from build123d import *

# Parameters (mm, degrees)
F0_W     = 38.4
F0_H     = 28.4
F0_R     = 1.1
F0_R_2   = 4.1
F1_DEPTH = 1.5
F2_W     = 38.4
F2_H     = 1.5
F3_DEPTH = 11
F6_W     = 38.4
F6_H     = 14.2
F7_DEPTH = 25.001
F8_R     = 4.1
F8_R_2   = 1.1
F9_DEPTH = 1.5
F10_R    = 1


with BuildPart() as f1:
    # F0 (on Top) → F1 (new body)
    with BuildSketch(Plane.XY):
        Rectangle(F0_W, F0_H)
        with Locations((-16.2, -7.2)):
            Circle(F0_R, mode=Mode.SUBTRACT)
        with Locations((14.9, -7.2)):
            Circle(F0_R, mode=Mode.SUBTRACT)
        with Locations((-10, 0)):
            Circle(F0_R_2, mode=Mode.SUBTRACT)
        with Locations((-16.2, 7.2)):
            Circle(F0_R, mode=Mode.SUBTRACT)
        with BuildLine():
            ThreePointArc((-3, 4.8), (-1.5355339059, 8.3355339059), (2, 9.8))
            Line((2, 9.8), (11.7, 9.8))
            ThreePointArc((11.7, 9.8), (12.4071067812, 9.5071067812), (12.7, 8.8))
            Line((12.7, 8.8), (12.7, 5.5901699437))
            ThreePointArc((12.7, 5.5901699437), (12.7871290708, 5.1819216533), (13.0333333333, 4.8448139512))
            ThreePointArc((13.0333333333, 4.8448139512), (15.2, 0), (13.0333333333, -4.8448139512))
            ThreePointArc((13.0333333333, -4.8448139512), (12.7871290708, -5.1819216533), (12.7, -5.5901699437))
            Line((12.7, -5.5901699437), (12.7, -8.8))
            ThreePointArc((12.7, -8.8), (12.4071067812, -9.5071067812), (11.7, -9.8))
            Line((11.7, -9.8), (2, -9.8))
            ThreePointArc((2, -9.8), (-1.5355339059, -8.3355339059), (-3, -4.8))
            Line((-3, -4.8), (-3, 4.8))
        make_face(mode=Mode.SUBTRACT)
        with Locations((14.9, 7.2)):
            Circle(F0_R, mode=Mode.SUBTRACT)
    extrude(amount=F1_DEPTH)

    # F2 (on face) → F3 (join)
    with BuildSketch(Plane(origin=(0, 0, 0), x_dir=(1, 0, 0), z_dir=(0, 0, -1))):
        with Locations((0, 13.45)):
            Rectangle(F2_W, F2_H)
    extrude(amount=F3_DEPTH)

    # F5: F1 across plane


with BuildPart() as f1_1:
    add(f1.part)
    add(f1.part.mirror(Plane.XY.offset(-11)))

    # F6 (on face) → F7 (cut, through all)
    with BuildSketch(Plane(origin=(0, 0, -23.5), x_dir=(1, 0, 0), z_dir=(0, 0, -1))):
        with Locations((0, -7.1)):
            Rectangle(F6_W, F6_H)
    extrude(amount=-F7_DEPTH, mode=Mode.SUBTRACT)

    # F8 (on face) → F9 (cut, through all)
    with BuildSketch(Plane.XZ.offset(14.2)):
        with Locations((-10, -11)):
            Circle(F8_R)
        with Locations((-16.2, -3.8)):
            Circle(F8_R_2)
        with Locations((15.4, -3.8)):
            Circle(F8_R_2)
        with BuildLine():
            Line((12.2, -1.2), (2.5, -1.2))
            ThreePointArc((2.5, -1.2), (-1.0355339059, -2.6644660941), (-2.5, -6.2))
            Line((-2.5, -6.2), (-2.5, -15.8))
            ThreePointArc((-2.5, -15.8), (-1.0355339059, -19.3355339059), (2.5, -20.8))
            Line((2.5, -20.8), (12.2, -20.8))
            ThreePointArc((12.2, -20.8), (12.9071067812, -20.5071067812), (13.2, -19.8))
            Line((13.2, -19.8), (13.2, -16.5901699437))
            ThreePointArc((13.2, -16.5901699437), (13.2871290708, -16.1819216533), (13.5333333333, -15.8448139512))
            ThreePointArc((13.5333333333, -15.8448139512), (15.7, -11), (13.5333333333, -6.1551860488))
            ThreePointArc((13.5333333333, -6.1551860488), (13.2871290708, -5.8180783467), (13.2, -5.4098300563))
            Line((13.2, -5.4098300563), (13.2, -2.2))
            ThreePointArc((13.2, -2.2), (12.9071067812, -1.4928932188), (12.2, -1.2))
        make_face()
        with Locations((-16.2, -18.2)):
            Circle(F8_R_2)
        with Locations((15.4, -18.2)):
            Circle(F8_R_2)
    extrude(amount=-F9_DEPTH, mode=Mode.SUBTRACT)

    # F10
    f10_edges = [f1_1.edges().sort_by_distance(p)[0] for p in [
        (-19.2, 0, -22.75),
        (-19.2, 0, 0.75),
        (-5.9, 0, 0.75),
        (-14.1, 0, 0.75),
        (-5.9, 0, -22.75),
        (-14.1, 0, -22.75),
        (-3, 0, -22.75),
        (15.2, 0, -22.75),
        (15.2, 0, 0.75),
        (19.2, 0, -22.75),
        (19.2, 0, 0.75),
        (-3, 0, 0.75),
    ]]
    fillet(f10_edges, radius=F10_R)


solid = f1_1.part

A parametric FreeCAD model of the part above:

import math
import FreeCAD as App
import Part
import Sketcher
from FreeCAD import Vector


def edges_at(feature, points):
    """Names of the edges that pass closest to the given points."""
    edges = feature.Shape.Edges
    near = lambda p: min(range(len(edges)), key=lambda i: edges[i].distToShape(Part.Vertex(*p))[0])
    return sorted({f"Edge{near(p) + 1}" for p in points})


def add_polygon(sketch, points):
    """Adds a closed chain of lines whose ends are joined by coincident constraints."""
    first, n = sketch.GeometryCount, len(points)
    for a, b in zip(points, points[1:] + points[:1]):
        sketch.addGeometry(Part.LineSegment(App.Vector(*a, 0), App.Vector(*b, 0)), False)
    for i in range(n):
        sketch.addConstraint(Sketcher.Constraint("Coincident", first + i, 2, first + (i + 1) % n, 1))

doc = App.newDocument("Part")
body = doc.addObject("PartDesign::Body", "Body")

# Sketch on XY plane
sketch1 = body.newObject("Sketcher::SketchObject", "Sketch")
sketch1.AttachmentSupport = (doc.getObject("XY_Plane"), [""])
sketch1.MapMode = "FlatFace"
add_polygon(sketch1, [(-19.2, 14.2), (-19.2, -14.2), (19.2, -14.2), (19.2, 14.2)])  # lines 0-3
sketch1.addGeometry(Part.Circle(Vector(-16.2, -7.2, 0), Vector(0, 0, 1), 1.1), False)  # 4
sketch1.addGeometry(Part.Circle(Vector(14.9, -7.2, 0), Vector(0, 0, 1), 1.1), False)  # 5
sketch1.addGeometry(Part.Circle(Vector(-10, 0, 0), Vector(0, 0, 1), 4.1), False)  # 6
sketch1.addGeometry(Part.Circle(Vector(-16.2, 7.2, 0), Vector(0, 0, 1), 1.1), False)  # 7
sketch1.addGeometry(Part.LineSegment(Vector(-3, -4.8, 0), Vector(-3, 4.8, 0)), False)  # 8
sketch1.addGeometry(Part.ArcOfCircle(Part.Circle(Vector(2, 4.8, 0), Vector(0, 0, 1), 5), math.radians(90), math.radians(180)), False)  # 9
sketch1.addGeometry(Part.LineSegment(Vector(2, 9.8, 0), Vector(11.7, 9.8, 0)), False)  # 10
sketch1.addGeometry(Part.ArcOfCircle(Part.Circle(Vector(11.7, 8.8, 0), Vector(0, 0, 1), 1), math.radians(0), math.radians(90)), False)  # 11
sketch1.addGeometry(Part.LineSegment(Vector(12.7, 8.8, 0), Vector(12.7, 5.59017, 0)), False)  # 12
sketch1.addGeometry(Part.ArcOfCircle(Part.Circle(Vector(13.7, 5.59017, 0), Vector(0, 0, 1), 1), math.radians(180), math.radians(228.189685)), False)  # 13
sketch1.addGeometry(Part.ArcOfCircle(Part.Circle(Vector(8.7, 0, 0), Vector(0, 0, 1), 6.5), math.radians(-48.189685), math.radians(48.189685)), False)  # 14
sketch1.addGeometry(Part.ArcOfCircle(Part.Circle(Vector(13.7, -5.59017, 0), Vector(0, 0, 1), 1), math.radians(131.810315), math.radians(180)), False)  # 15
sketch1.addGeometry(Part.LineSegment(Vector(12.7, -5.59017, 0), Vector(12.7, -8.8, 0)), False)  # 16
sketch1.addGeometry(Part.ArcOfCircle(Part.Circle(Vector(11.7, -8.8, 0), Vector(0, 0, 1), 1), math.radians(-90), math.radians(0)), False)  # 17
sketch1.addGeometry(Part.LineSegment(Vector(11.7, -9.8, 0), Vector(2, -9.8, 0)), False)  # 18
sketch1.addGeometry(Part.ArcOfCircle(Part.Circle(Vector(2, -4.8, 0), Vector(0, 0, 1), 5), math.radians(180), math.radians(270)), False)  # 19
sketch1.addGeometry(Part.Circle(Vector(14.9, 7.2, 0), Vector(0, 0, 1), 1.1), False)  # 20
sketch1.addConstraint(Sketcher.Constraint("Tangent", 8, 2, 9, 2))
sketch1.addConstraint(Sketcher.Constraint("Tangent", 9, 1, 10, 1))
sketch1.addConstraint(Sketcher.Constraint("Tangent", 10, 2, 11, 2))
sketch1.addConstraint(Sketcher.Constraint("Tangent", 11, 1, 12, 1))
sketch1.addConstraint(Sketcher.Constraint("Tangent", 12, 2, 13, 1))
sketch1.addConstraint(Sketcher.Constraint("Tangent", 13, 2, 14, 2))
sketch1.addConstraint(Sketcher.Constraint("Tangent", 14, 1, 15, 1))
sketch1.addConstraint(Sketcher.Constraint("Tangent", 15, 2, 16, 1))
sketch1.addConstraint(Sketcher.Constraint("Tangent", 16, 2, 17, 2))
sketch1.addConstraint(Sketcher.Constraint("Tangent", 17, 1, 18, 1))
sketch1.addConstraint(Sketcher.Constraint("Tangent", 18, 2, 19, 2))
sketch1.addConstraint(Sketcher.Constraint("Tangent", 19, 1, 8, 1))
sketch1.addConstraint(Sketcher.Constraint("Vertical", 0))
sketch1.addConstraint(Sketcher.Constraint("Horizontal", 1))
sketch1.addConstraint(Sketcher.Constraint("Vertical", 2))
sketch1.addConstraint(Sketcher.Constraint("Horizontal", 3))
sketch1.addConstraint(Sketcher.Constraint("Vertical", 8))
sketch1.addConstraint(Sketcher.Constraint("Horizontal", 10))
sketch1.addConstraint(Sketcher.Constraint("Vertical", 12))
sketch1.addConstraint(Sketcher.Constraint("Vertical", 16))
sketch1.addConstraint(Sketcher.Constraint("Horizontal", 18))
sketch1.addConstraint(Sketcher.Constraint("Equal", 4, 5))
sketch1.addConstraint(Sketcher.Constraint("Equal", 5, 7))
sketch1.addConstraint(Sketcher.Constraint("Equal", 11, 13))
sketch1.addConstraint(Sketcher.Constraint("Equal", 13, 15))
sketch1.addConstraint(Sketcher.Constraint("Equal", 15, 17))
sketch1.addConstraint(Sketcher.Constraint("Equal", 9, 19))
sketch1.addConstraint(Sketcher.Constraint("Equal", 7, 20))
sketch1.addConstraint(Sketcher.Constraint("Symmetric", 0, 2, 2, 2, -1, 1))
sketch1.addConstraint(Sketcher.Constraint("Symmetric", 4, 3, 7, 3, -1))
sketch1.addConstraint(Sketcher.Constraint("Symmetric", 13, 3, 15, 3, -1))
sketch1.addConstraint(Sketcher.Constraint("Symmetric", 5, 3, 20, 3, -1))
sketch1.addConstraint(Sketcher.Constraint("PointOnObject", 6, 3, -1))
sketch1.addConstraint(Sketcher.Constraint("Horizontal", 4, 3, 5, 3))
sketch1.addConstraint(Sketcher.Constraint("Equal", 12, 16))
sketch1.addConstraint(Sketcher.Constraint("Radius", 9, 5.0))
sketch1.addConstraint(Sketcher.Constraint("Radius", 11, 1.0))
sketch1.addConstraint(Sketcher.Constraint("Diameter", 4, 2.2))
sketch1.addConstraint(Sketcher.Constraint("Diameter", 6, 8.2))
sketch1.addConstraint(Sketcher.Constraint("Radius", 14, 6.5))
sketch1.addConstraint(Sketcher.Constraint("DistanceX", 1, 1, 1, 2, 38.4))
sketch1.addConstraint(Sketcher.Constraint("DistanceX", 10, 1, 10, 2, 9.7))
sketch1.addConstraint(Sketcher.Constraint("DistanceY", 0, 2, 0, 1, 28.4))
sketch1.addConstraint(Sketcher.Constraint("DistanceY", 8, 1, 8, 2, 9.6))
sketch1.addConstraint(Sketcher.Constraint("DistanceX", 6, 3, -1, 1, 10.0))
sketch1.addConstraint(Sketcher.Constraint("DistanceX", -1, 1, 9, 3, 2.0))
sketch1.addConstraint(Sketcher.Constraint("DistanceY", 5, 3, 9, 3, 12.0))
sketch1.addConstraint(Sketcher.Constraint("DistanceX", 14, 3, 13, 3, 5.0))
sketch1.addConstraint(Sketcher.Constraint("DistanceX", 0, 2, 4, 3, 3.0))
sketch1.addConstraint(Sketcher.Constraint("DistanceX", -1, 1, 5, 3, 14.9))
pad1 = body.newObject("PartDesign::Pad", "Pad")
pad1.Profile = sketch1
pad1.Length = 1.5

# Sketch on XY plane
sketch2 = body.newObject("Sketcher::SketchObject", "Sketch001")
sketch2.AttachmentSupport = (doc.getObject("XY_Plane"), [""])
sketch2.MapMode = "FlatFace"
add_polygon(sketch2, [(-19.2, -14.2), (-19.2, -12.7), (19.2, -12.7), (19.2, -14.2)])  # lines 0-3
sketch2.addConstraint(Sketcher.Constraint("Vertical", 0))
sketch2.addConstraint(Sketcher.Constraint("Horizontal", 1))
sketch2.addConstraint(Sketcher.Constraint("Vertical", 2))
sketch2.addConstraint(Sketcher.Constraint("Horizontal", 3))
sketch2.addConstraint(Sketcher.Constraint("DistanceX", 1, 1, 1, 2, 38.4))
sketch2.addConstraint(Sketcher.Constraint("DistanceY", 0, 1, 0, 2, 1.5))
sketch2.addConstraint(Sketcher.Constraint("DistanceX", 0, 2, -1, 1, 19.2))
sketch2.addConstraint(Sketcher.Constraint("DistanceY", 0, 2, -1, 1, 12.7))
pad2 = body.newObject("PartDesign::Pad", "Pad001")
pad2.Profile = sketch2
pad2.Length = 11
pad2.Reversed = True
body2 = doc.addObject("PartDesign::Body", "Body001")
doc.recompute()

body2.BaseFeature = body
doc.recompute()

mirroring = doc.addObject("Part::Mirroring", "Mirroring")
mirroring.Source = body
mirroring.Base = Vector(0, 0, -11)
mirroring.Normal = Vector(0, 0, 1)
body3 = doc.addObject("PartDesign::Body", "Body002")
body3.BaseFeature = mirroring
boolean = body2.newObject("PartDesign::Boolean", "Boolean")
boolean.Type = "Fuse"
boolean.addObjects([body3])
doc.recompute()

# Sketch on XY plane
sketch3 = body2.newObject("Sketcher::SketchObject", "Sketch002")
sketch3.AttachmentSupport = (doc.getObject("XY_Plane001"), [""])
sketch3.MapMode = "FlatFace"
sketch3.AttachmentOffset = App.Placement(Vector(0, 0, -23.5), App.Rotation())
add_polygon(sketch3, [(-19.2, 0), (-19.2, 14.2), (19.2, 14.2), (19.2, 0)])  # lines 0-3
sketch3.addConstraint(Sketcher.Constraint("Vertical", 0))
sketch3.addConstraint(Sketcher.Constraint("Horizontal", 1))
sketch3.addConstraint(Sketcher.Constraint("Vertical", 2))
sketch3.addConstraint(Sketcher.Constraint("Horizontal", 3))
sketch3.addConstraint(Sketcher.Constraint("Symmetric", 2, 2, 3, 2, -1, 1))
sketch3.addConstraint(Sketcher.Constraint("DistanceX", 1, 1, 1, 2, 38.4))
sketch3.addConstraint(Sketcher.Constraint("DistanceY", 0, 1, 0, 2, 14.2))
pocket1 = body2.newObject("PartDesign::Pocket", "Pocket")
pocket1.Profile = sketch3
pocket1.Type = "ThroughAll"
pocket1.Reversed = True

# Sketch on XZ plane
sketch4 = body2.newObject("Sketcher::SketchObject", "Sketch003")
sketch4.AttachmentSupport = (doc.getObject("XZ_Plane001"), [""])
sketch4.MapMode = "FlatFace"
sketch4.AttachmentOffset = App.Placement(Vector(0, 0, 14.2), App.Rotation())
sketch4.addGeometry(Part.Circle(Vector(-10, -11, 0), Vector(0, 0, 1), 4.1), False)
sketch4.addGeometry(Part.Circle(Vector(-16.2, -3.8, 0), Vector(0, 0, 1), 1.1), False)
sketch4.addGeometry(Part.Circle(Vector(15.4, -3.8, 0), Vector(0, 0, 1), 1.1), False)
sketch4.addGeometry(Part.LineSegment(Vector(12.2, -1.2, 0), Vector(2.5, -1.2, 0)), False)
sketch4.addGeometry(Part.ArcOfCircle(Part.Circle(Vector(2.5, -6.2, 0), Vector(0, 0, 1), 5), math.radians(90), math.radians(180)), False)
sketch4.addGeometry(Part.LineSegment(Vector(-2.5, -6.2, 0), Vector(-2.5, -15.8, 0)), False)
sketch4.addGeometry(Part.ArcOfCircle(Part.Circle(Vector(2.5, -15.8, 0), Vector(0, 0, 1), 5), math.radians(180), math.radians(270)), False)
sketch4.addGeometry(Part.LineSegment(Vector(2.5, -20.8, 0), Vector(12.2, -20.8, 0)), False)
sketch4.addGeometry(Part.ArcOfCircle(Part.Circle(Vector(12.2, -19.8, 0), Vector(0, 0, 1), 1), math.radians(-90), math.radians(0)), False)
sketch4.addGeometry(Part.LineSegment(Vector(13.2, -19.8, 0), Vector(13.2, -16.59017, 0)), False)
sketch4.addGeometry(Part.ArcOfCircle(Part.Circle(Vector(14.2, -16.59017, 0), Vector(0, 0, 1), 1), math.radians(131.810315), math.radians(180)), False)
sketch4.addGeometry(Part.ArcOfCircle(Part.Circle(Vector(9.2, -11, 0), Vector(0, 0, 1), 6.5), math.radians(-48.189685), math.radians(48.189685)), False)
sketch4.addGeometry(Part.ArcOfCircle(Part.Circle(Vector(14.2, -5.40983, 0), Vector(0, 0, 1), 1), math.radians(180), math.radians(228.189685)), False)
sketch4.addGeometry(Part.LineSegment(Vector(13.2, -5.40983, 0), Vector(13.2, -2.2, 0)), False)
sketch4.addGeometry(Part.ArcOfCircle(Part.Circle(Vector(12.2, -2.2, 0), Vector(0, 0, 1), 1), math.radians(0), math.radians(90)), False)
sketch4.addGeometry(Part.Circle(Vector(-16.2, -18.2, 0), Vector(0, 0, 1), 1.1), False)
sketch4.addGeometry(Part.Circle(Vector(15.4, -18.2, 0), Vector(0, 0, 1), 1.1), False)
sketch4.addConstraint(Sketcher.Constraint("Tangent", 3, 2, 4, 1))
sketch4.addConstraint(Sketcher.Constraint("Tangent", 4, 2, 5, 1))
sketch4.addConstraint(Sketcher.Constraint("Tangent", 5, 2, 6, 1))
sketch4.addConstraint(Sketcher.Constraint("Tangent", 6, 2, 7, 1))
sketch4.addConstraint(Sketcher.Constraint("Tangent", 7, 2, 8, 1))
sketch4.addConstraint(Sketcher.Constraint("Tangent", 8, 2, 9, 1))
sketch4.addConstraint(Sketcher.Constraint("Tangent", 9, 2, 10, 2))
sketch4.addConstraint(Sketcher.Constraint("Tangent", 10, 1, 11, 1))
sketch4.addConstraint(Sketcher.Constraint("Tangent", 11, 2, 12, 2))
sketch4.addConstraint(Sketcher.Constraint("Tangent", 12, 1, 13, 1))
sketch4.addConstraint(Sketcher.Constraint("Tangent", 13, 2, 14, 1))
sketch4.addConstraint(Sketcher.Constraint("Tangent", 14, 2, 3, 1))
sketch4.addConstraint(Sketcher.Constraint("Horizontal", 3))
sketch4.addConstraint(Sketcher.Constraint("Vertical", 5))
sketch4.addConstraint(Sketcher.Constraint("Horizontal", 7))
sketch4.addConstraint(Sketcher.Constraint("Vertical", 9))
sketch4.addConstraint(Sketcher.Constraint("Vertical", 13))
sketch4.addConstraint(Sketcher.Constraint("Equal", 1, 2))
sketch4.addConstraint(Sketcher.Constraint("Equal", 4, 6))
sketch4.addConstraint(Sketcher.Constraint("Equal", 8, 10))
sketch4.addConstraint(Sketcher.Constraint("Equal", 10, 12))
sketch4.addConstraint(Sketcher.Constraint("Equal", 12, 14))
sketch4.addConstraint(Sketcher.Constraint("Equal", 2, 15))
sketch4.addConstraint(Sketcher.Constraint("Equal", 15, 16))
sketch4.addConstraint(Sketcher.Constraint("Horizontal", 1, 3, 2, 3))
sketch4.addConstraint(Sketcher.Constraint("Horizontal", 0, 3, 11, 3))
sketch4.addConstraint(Sketcher.Constraint("Horizontal", 15, 3, 16, 3))
sketch4.addConstraint(Sketcher.Constraint("Vertical", 10, 3, 12, 3))
sketch4.addConstraint(Sketcher.Constraint("Vertical", 1, 3, 15, 3))
sketch4.addConstraint(Sketcher.Constraint("Vertical", 2, 3, 16, 3))
sketch4.addConstraint(Sketcher.Constraint("Equal", 9, 13))
sketch4.addConstraint(Sketcher.Constraint("Radius", 4, 5.0))
sketch4.addConstraint(Sketcher.Constraint("Radius", 8, 1.0))
sketch4.addConstraint(Sketcher.Constraint("Diameter", 0, 8.2))
sketch4.addConstraint(Sketcher.Constraint("Diameter", 1, 2.2))
sketch4.addConstraint(Sketcher.Constraint("Radius", 11, 6.5))
sketch4.addConstraint(Sketcher.Constraint("DistanceX", 3, 2, 3, 1, 9.7))
sketch4.addConstraint(Sketcher.Constraint("DistanceY", 5, 2, 5, 1, 9.6))
sketch4.addConstraint(Sketcher.Constraint("DistanceX", 0, 3, -1, 1, 10.0))
sketch4.addConstraint(Sketcher.Constraint("DistanceY", 0, 3, -1, 1, 11.0))
sketch4.addConstraint(Sketcher.Constraint("DistanceY", 6, 3, 2, 3, 12.0))
sketch4.addConstraint(Sketcher.Constraint("DistanceX", 11, 3, 10, 3, 5.0))
sketch4.addConstraint(Sketcher.Constraint("DistanceY", 15, 3, 4, 3, 12.0))
sketch4.addConstraint(Sketcher.Constraint("DistanceX", 1, 3, -1, 1, 16.2))
sketch4.addConstraint(Sketcher.Constraint("DistanceX", -1, 1, 2, 3, 15.4))
sketch4.addConstraint(Sketcher.Constraint("DistanceX", -1, 1, 4, 3, 2.5))
pocket2 = body2.newObject("PartDesign::Pocket", "Pocket001")
pocket2.Profile = sketch4
pocket2.Type = "ThroughAll"
doc.recompute()

fillet = body2.newObject("PartDesign::Fillet", "Fillet")
fillet.Base = (pocket2, edges_at(pocket2, [
    (-19.2, 0, -22.75),
    (-19.2, 0, 0.75),
    (-5.9, 0, 0.75),
    (-14.1, 0, 0.75),
    (-5.9, 0, -22.75),
    (-14.1, 0, -22.75),
    (-3, 0, -22.75),
    (15.2, 0, -22.75),
    (15.2, 0, 0.75),
    (19.2, 0, -22.75),
    (19.2, 0, 0.75),
    (-3, 0, 0.75),
]))
fillet.Radius = 1
mirroring.Visibility = False

doc.recompute()
